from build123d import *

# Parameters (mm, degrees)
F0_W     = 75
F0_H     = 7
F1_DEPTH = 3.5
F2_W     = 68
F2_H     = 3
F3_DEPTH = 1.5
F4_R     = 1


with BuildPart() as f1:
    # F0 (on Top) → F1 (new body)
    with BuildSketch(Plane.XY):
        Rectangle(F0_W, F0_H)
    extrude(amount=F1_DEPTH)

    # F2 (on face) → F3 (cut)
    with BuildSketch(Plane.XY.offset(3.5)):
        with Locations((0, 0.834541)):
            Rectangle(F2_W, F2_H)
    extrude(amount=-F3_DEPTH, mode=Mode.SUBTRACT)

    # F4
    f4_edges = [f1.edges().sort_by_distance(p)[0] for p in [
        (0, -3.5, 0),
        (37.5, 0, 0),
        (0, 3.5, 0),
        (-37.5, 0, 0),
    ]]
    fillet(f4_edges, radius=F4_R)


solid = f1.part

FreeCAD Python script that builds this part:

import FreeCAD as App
import Part
import Sketcher

V = App.Vector
Q = App.Units.Quantity


def edges_at(feature, points):
    """Names of the edges that pass closest to the given points."""
    edges = feature.Shape.Edges
    near = lambda p: min(range(len(edges)), key=lambda i: edges[i].distToShape(Part.Vertex(*p))[0])
    return sorted({f"Edge{near(p) + 1}" for p in points})


def add_polygon(sketch, points):
    """Adds a closed chain of lines whose ends are joined by coincident constraints."""
    first, n = sketch.GeometryCount, len(points)
    for a, b in zip(points, points[1:] + points[:1]):
        sketch.addGeometry(Part.LineSegment(App.Vector(*a, 0), App.Vector(*b, 0)), False)
    for i in range(n):
        sketch.addConstraint(Sketcher.Constraint("Coincident", first + i, 2, first + (i + 1) % n, 1))

doc = App.newDocument("Part")
body = doc.addObject("PartDesign::Body", "Body")

sketch1 = doc.addObject("Sketcher::SketchObject", "Sketch")
body.addObject(sketch1)
sketch1.AttachmentSupport = (doc.XY_Plane, [""])
sketch1.MapMode = "FlatFace"
add_polygon(sketch1, [(-38, 4), (-38, -4), (38, -4), (38, 4)])
sketch1.addConstraint([
    Sketcher.Constraint("Vertical", 0),
    Sketcher.Constraint("Horizontal", 1),
    Sketcher.Constraint("Vertical", 2),
    Sketcher.Constraint("Horizontal", 3),
    Sketcher.Constraint("Symmetric", 0, 2, 2, 2, -1, 1),
    Sketcher.Constraint("DistanceX", 1, 1, 1, 2, Q("75 mm")),
    Sketcher.Constraint("DistanceY", 0, 2, 0, 1, Q("7 mm")),
])
pad1 = doc.addObject("PartDesign::Pad", "Pad")
body.addObject(pad1)
pad1.Profile = sketch1
pad1.Length = 3.5

sketch2 = doc.addObject("Sketcher::SketchObject", "Sketch001")
body.addObject(sketch2)
sketch2.AttachmentSupport = (doc.XY_Plane, [""])
sketch2.MapMode = "FlatFace"
sketch2.AttachmentOffset = App.Placement(V(0, 0, 3.5), App.Rotation())
add_polygon(sketch2, [(-34, 2.3), (-34, -0.7), (34, -0.7), (34, 2.3)])
sketch2.addConstraint([
    Sketcher.Constraint("Vertical", 0),
    Sketcher.Constraint("Horizontal", 1),
    Sketcher.Constraint("Vertical", 2),
    Sketcher.Constraint("Horizontal", 3),
    Sketcher.Constraint("DistanceX", 1, 1, 1, 2, Q("68 mm")),
    Sketcher.Constraint("DistanceY", 0, 2, 0, 1, Q("3 mm")),
    Sketcher.Constraint("DistanceX", 0, 2, -1, 1, Q("34 mm")),
    Sketcher.Constraint("DistanceY", 0, 2, -1, 1, Q("0.665459 mm")),
])
pocket1 = doc.addObject("PartDesign::Pocket", "Pocket")
body.addObject(pocket1)
pocket1.Profile = sketch2
pocket1.Length = 1.5
doc.recompute()

fillet = doc.addObject("PartDesign::Fillet", "Fillet")
body.addObject(fillet)
fillet.Base = (pocket1, edges_at(pocket1, [
    (0, -3.5, 0),
    (37.5, 0, 0),
    (0, 3.5, 0),
    (-37.5, 0, 0),
]))
fillet.Radius = 1

doc.recompute()
